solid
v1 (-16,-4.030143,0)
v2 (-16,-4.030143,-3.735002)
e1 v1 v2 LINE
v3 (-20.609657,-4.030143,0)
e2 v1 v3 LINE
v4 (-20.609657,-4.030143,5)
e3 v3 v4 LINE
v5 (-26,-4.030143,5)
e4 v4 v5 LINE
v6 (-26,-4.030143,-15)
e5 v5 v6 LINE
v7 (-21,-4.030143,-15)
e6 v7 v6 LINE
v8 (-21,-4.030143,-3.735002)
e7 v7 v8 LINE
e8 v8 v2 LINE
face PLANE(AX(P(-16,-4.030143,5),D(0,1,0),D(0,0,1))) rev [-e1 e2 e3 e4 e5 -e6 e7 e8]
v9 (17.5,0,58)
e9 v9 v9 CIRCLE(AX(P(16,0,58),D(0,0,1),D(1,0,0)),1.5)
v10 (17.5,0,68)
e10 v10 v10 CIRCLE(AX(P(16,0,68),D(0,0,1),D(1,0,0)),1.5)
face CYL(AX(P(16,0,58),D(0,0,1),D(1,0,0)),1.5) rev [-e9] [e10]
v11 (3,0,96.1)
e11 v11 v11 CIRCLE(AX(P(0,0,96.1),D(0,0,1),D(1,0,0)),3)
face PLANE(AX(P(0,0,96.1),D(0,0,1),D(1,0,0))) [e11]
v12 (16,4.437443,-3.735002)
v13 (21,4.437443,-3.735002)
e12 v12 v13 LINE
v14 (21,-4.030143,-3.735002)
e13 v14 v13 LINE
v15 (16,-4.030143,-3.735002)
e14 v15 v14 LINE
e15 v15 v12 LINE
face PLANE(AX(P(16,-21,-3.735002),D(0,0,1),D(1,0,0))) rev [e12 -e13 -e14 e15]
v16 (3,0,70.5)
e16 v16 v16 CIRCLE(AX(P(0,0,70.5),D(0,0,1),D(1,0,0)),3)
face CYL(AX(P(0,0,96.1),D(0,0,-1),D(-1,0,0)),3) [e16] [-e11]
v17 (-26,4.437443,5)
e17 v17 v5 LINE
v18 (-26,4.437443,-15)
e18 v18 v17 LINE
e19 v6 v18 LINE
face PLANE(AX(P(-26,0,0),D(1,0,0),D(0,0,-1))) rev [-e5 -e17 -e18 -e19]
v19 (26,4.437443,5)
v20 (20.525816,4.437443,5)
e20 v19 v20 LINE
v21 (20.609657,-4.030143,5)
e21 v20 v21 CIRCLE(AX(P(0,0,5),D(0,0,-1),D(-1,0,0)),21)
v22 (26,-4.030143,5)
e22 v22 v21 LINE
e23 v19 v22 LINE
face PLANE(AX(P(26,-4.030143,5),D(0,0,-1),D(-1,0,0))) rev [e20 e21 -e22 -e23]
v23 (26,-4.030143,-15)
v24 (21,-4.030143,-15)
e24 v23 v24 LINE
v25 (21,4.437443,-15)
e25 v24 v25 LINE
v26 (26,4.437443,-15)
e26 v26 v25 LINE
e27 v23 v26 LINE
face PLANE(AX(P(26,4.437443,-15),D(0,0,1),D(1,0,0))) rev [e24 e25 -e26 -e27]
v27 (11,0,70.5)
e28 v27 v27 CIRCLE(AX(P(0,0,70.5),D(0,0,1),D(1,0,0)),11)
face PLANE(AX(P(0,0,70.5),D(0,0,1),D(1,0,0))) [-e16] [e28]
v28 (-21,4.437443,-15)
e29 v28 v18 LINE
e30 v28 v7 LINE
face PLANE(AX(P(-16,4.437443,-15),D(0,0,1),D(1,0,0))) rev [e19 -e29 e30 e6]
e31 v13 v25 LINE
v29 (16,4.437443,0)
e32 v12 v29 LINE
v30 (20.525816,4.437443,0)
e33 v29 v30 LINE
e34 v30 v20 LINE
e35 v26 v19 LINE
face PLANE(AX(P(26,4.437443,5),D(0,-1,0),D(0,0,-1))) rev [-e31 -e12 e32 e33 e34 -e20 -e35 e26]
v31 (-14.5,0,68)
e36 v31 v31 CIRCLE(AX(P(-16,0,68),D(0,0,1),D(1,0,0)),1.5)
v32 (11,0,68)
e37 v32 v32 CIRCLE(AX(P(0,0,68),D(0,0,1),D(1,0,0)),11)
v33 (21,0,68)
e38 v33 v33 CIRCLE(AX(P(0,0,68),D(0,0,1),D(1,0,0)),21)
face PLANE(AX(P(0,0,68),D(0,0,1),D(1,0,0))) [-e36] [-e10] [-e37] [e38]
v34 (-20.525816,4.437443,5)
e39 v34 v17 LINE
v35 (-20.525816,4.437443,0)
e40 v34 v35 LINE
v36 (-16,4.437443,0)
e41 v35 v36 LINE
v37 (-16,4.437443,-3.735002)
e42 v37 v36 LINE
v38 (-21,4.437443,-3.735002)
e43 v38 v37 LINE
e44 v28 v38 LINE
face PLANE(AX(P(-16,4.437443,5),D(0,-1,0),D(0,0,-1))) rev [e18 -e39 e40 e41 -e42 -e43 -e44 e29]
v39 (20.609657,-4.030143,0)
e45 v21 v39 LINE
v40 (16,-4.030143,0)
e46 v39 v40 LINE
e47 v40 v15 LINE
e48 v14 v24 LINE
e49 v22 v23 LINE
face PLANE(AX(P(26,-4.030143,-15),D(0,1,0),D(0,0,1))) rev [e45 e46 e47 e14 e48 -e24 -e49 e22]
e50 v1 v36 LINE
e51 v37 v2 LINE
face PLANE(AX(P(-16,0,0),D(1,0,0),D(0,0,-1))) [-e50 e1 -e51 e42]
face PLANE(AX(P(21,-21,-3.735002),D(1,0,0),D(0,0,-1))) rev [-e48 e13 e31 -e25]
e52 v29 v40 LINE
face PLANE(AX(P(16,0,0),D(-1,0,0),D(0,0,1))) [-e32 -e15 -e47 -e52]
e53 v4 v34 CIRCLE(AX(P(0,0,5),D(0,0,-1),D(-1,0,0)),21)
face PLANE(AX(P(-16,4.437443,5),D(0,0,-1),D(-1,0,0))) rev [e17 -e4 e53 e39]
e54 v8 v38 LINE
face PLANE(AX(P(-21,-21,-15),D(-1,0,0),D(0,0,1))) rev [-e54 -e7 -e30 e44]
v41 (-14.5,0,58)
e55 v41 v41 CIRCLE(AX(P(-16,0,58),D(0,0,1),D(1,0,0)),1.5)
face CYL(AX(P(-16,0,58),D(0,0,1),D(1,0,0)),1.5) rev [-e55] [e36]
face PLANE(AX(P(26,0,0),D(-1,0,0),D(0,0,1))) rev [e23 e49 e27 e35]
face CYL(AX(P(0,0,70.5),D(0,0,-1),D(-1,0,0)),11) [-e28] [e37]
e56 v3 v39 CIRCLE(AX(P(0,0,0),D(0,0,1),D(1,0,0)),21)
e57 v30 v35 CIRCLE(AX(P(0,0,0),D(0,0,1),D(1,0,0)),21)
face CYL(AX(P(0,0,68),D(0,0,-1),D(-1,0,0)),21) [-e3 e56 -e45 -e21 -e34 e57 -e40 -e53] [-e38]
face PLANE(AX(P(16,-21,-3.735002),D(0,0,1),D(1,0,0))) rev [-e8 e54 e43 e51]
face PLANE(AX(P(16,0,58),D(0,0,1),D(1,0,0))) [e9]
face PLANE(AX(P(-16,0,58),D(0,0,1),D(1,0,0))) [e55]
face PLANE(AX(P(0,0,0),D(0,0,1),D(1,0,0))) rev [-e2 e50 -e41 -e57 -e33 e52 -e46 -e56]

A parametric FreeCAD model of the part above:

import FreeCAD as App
import Part
import Sketcher

V = App.Vector


def add_polygon(sketch, points):
    """Adds a closed chain of lines whose ends are joined by coincident constraints."""
    first, n = sketch.GeometryCount, len(points)
    for a, b in zip(points, points[1:] + points[:1]):
        sketch.addGeometry(Part.LineSegment(App.Vector(*a, 0), App.Vector(*b, 0)), False)
    for i in range(n):
        sketch.addConstraint(Sketcher.Constraint("Coincident", first + i, 2, first + (i + 1) % n, 1))

doc = App.newDocument("Part")
body = doc.addObject("PartDesign::Body", "Body")

sketch1 = body.newObject("Sketcher::SketchObject", "Sketch")
sketch1.AttachmentSupport = (doc.getObject("XY_Plane"), [""])
sketch1.MapMode = "FlatFace"
sketch1.addGeometry(Part.Circle(V(0, 0, 0), V(0, 0, 1), 21), False)
sketch1.addConstraint(Sketcher.Constraint("Coincident", 0, 3, -1, 1))
sketch1.addConstraint(Sketcher.Constraint("Diameter", 0, 42.0))
pad1 = body.newObject("PartDesign::Pad", "Pad")
pad1.Profile = sketch1
pad1.Length = 68

sketch2 = body.newObject("Sketcher::SketchObject", "Sketch001")
sketch2.AttachmentSupport = (doc.getObject("XY_Plane"), [""])
sketch2.MapMode = "FlatFace"
sketch2.AttachmentOffset = App.Placement(V(0, 0, 68), App.Rotation())
sketch2.addGeometry(Part.Circle(V(0, 0, 0), V(0, 0, 1), 11), False)
sketch2.addConstraint(Sketcher.Constraint("Coincident", 0, 3, -1, 1))
sketch2.addConstraint(Sketcher.Constraint("Diameter", 0, 22.0))
pad2 = body.newObject("PartDesign::Pad", "Pad001")
pad2.Profile = sketch2
pad2.Length = 2.5

sketch3 = body.newObject("Sketcher::SketchObject", "Sketch002")
sketch3.AttachmentSupport = (doc.getObject("XY_Plane"), [""])
sketch3.MapMode = "FlatFace"
sketch3.AttachmentOffset = App.Placement(V(0, 0, 70.5), App.Rotation())
sketch3.addGeometry(Part.Circle(V(0, 0, 0), V(0, 0, 1), 3), False)
sketch3.addConstraint(Sketcher.Constraint("Coincident", 0, 3, -1, 1))
sketch3.addConstraint(Sketcher.Constraint("Diameter", 0, 6.0))
pad3 = body.newObject("PartDesign::Pad", "Pad002")
pad3.Profile = sketch3
pad3.Length = 25.6

sketch4 = body.newObject("Sketcher::SketchObject", "Sketch003")
sketch4.AttachmentSupport = (doc.getObject("YZ_Plane"), [""])
sketch4.MapMode = "FlatFace"
sketch4.AttachmentOffset = App.Placement(V(0, 0, 21), App.Rotation())
add_polygon(sketch4, [(4, 5), (-4, 5), (-4, -15), (4, -15)])
sketch4.addConstraint(Sketcher.Constraint("Horizontal", 0))
sketch4.addConstraint(Sketcher.Constraint("Vertical", 1))
sketch4.addConstraint(Sketcher.Constraint("Horizontal", 2))
sketch4.addConstraint(Sketcher.Constraint("Vertical", 3))
sketch4.addConstraint(Sketcher.Constraint("DistanceY", 1, 2, 1, 1, 20.0))
sketch4.addConstraint(Sketcher.Constraint("DistanceY", -1, 1, 0, 2, 5.0))
sketch4.addConstraint(Sketcher.Constraint("DistanceX", 0, 2, 0, 1, 8.467586))
sketch4.addConstraint(Sketcher.Constraint("DistanceX", 0, 2, -1, 1, 4.030143))
pad4 = body.newObject("PartDesign::Pad", "Pad003")
pad4.Profile = sketch4
pad4.Length = 10
pad4.Midplane = True

sketch5 = body.newObject("Sketcher::SketchObject", "Sketch004")
sketch5.AttachmentSupport = (doc.getObject("YZ_Plane"), [""])
sketch5.MapMode = "FlatFace"
sketch5.AttachmentOffset = App.Placement(V(0, 0, -21), App.Rotation())
add_polygon(sketch5, [(4, 5), (-4, 5), (-4, -15), (4, -15)])
sketch5.addConstraint(Sketcher.Constraint("Horizontal", 0))
sketch5.addConstraint(Sketcher.Constraint("Vertical", 1))
sketch5.addConstraint(Sketcher.Constraint("Horizontal", 2))
sketch5.addConstraint(Sketcher.Constraint("Vertical", 3))
sketch5.addConstraint(Sketcher.Constraint("DistanceY", 1, 2, 1, 1, 20.0))
sketch5.addConstraint(Sketcher.Constraint("DistanceY", -1, 1, 0, 2, 5.0))
sketch5.addConstraint(Sketcher.Constraint("DistanceX", 0, 2, 0, 1, 8.467586))
sketch5.addConstraint(Sketcher.Constraint("DistanceX", 0, 2, -1, 1, 4.030143))
pad5 = body.newObject("PartDesign::Pad", "Pad004")
pad5.Profile = sketch5
pad5.Length = 10
pad5.Midplane = True

sketch6 = body.newObject("Sketcher::SketchObject", "Sketch005")
sketch6.AttachmentSupport = (doc.getObject("XZ_Plane"), [""])
sketch6.MapMode = "FlatFace"
sketch6.AttachmentOffset = App.Placement(V(0, 0, -4.437443), App.Rotation())
add_polygon(sketch6, [(21, -4), (21, -15), (-21, -15), (-21, -4)])
sketch6.addConstraint(Sketcher.Constraint("Vertical", 0))
sketch6.addConstraint(Sketcher.Constraint("Horizontal", 1))
sketch6.addConstraint(Sketcher.Constraint("Vertical", 2))
sketch6.addConstraint(Sketcher.Constraint("Horizontal", 3))
sketch6.addConstraint(Sketcher.Constraint("DistanceX", 1, 2, 1, 1, 42.0))
sketch6.addConstraint(Sketcher.Constraint("DistanceX", -1, 1, 0, 2, 21.0))
sketch6.addConstraint(Sketcher.Constraint("DistanceY", 0, 2, -1, 1, 15.0))
sketch6.addConstraint(Sketcher.Constraint("DistanceY", 0, 2, 0, 1, 11.264998))
pocket1 = body.newObject("PartDesign::Pocket", "Pocket")
pocket1.Profile = sketch6
pocket1.Type = "ThroughAll"
pocket1.Reversed = True

sketch7 = body.newObject("Sketcher::SketchObject", "Sketch006")
sketch7.AttachmentSupport = (doc.getObject("XY_Plane"), [""])
sketch7.MapMode = "FlatFace"
sketch7.AttachmentOffset = App.Placement(V(0, 0, 68), App.Rotation())
sketch7.addGeometry(Part.Circle(V(-16, 0, 0), V(0, 0, 1), 1.5), False)
sketch7.addGeometry(Part.Circle(V(16, 0, 0), V(0, 0, 1), 1.5), False)
sketch7.addConstraint(Sketcher.Constraint("Equal", 0, 1))
sketch7.addConstraint(Sketcher.Constraint("Symmetric", 0, 3, 1, 3, -1, 1))
sketch7.addConstraint(Sketcher.Constraint("PointOnObject", 0, 3, -1))
sketch7.addConstraint(Sketcher.Constraint("Diameter", 0, 3.0))
sketch7.addConstraint(Sketcher.Constraint("DistanceX", 0, 3, -1, 1, 16.0))
pocket2 = body.newObject("PartDesign::Pocket", "Pocket001")
pocket2.Profile = sketch7
pocket2.Length = 10

doc.recompute()
